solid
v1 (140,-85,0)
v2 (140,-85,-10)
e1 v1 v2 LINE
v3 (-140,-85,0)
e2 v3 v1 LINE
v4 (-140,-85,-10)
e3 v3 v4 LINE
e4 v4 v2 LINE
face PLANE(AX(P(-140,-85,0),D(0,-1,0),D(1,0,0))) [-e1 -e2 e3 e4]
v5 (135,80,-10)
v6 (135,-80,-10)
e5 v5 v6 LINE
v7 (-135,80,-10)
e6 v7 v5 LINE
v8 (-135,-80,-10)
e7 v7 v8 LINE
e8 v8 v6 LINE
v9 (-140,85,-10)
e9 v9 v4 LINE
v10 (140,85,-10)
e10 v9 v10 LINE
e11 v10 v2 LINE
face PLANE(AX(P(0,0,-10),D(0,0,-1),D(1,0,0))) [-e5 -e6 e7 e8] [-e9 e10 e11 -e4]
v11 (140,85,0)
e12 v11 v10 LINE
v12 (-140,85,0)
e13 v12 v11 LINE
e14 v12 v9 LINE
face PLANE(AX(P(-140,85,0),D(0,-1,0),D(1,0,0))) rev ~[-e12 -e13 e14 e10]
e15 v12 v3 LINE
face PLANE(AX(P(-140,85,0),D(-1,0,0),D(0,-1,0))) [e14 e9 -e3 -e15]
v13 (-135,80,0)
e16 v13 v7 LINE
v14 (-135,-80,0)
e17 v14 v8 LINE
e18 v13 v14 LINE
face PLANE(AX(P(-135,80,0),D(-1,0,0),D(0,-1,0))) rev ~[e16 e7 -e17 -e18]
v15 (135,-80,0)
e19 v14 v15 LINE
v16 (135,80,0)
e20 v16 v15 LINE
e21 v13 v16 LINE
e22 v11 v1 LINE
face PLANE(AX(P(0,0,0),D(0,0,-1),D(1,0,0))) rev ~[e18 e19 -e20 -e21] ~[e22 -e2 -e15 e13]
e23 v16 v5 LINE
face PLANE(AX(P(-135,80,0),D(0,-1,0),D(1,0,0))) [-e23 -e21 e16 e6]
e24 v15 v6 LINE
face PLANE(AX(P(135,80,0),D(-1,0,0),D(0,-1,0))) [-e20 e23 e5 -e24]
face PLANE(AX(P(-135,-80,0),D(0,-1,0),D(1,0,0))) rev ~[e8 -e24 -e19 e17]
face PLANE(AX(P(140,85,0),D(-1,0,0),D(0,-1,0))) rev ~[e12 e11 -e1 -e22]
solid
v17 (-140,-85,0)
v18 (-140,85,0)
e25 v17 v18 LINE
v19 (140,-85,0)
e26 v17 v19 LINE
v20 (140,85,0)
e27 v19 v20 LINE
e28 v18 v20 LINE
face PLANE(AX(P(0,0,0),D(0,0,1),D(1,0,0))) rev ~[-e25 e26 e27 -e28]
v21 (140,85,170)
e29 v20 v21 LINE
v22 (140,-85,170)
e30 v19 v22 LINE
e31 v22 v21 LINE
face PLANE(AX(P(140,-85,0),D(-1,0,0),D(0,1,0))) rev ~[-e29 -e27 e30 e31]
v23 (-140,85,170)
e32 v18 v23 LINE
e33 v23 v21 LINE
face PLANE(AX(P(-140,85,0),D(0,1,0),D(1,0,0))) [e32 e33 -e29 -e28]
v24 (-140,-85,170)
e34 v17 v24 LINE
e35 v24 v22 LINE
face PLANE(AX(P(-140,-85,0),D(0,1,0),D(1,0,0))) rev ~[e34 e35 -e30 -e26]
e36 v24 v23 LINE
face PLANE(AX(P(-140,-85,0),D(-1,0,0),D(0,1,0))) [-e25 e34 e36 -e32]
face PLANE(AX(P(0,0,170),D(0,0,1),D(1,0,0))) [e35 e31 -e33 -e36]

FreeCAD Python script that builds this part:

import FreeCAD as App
import Part
import Sketcher

V = App.Vector
Q = App.Units.Quantity


def add_polygon(sketch, points):
    """Adds a closed chain of lines whose ends are joined by coincident constraints."""
    first, n = sketch.GeometryCount, len(points)
    for a, b in zip(points, points[1:] + points[:1]):
        sketch.addGeometry(Part.LineSegment(App.Vector(*a, 0), App.Vector(*b, 0)), False)
    for i in range(n):
        sketch.addConstraint(Sketcher.Constraint("Coincident", first + i, 2, first + (i + 1) % n, 1))

doc = App.newDocument("Part")
body = doc.addObject("PartDesign::Body", "Body")

sketch1 = doc.addObject("Sketcher::SketchObject", "Sketch")
body.addObject(sketch1)
sketch1.AttachmentSupport = (doc.XY_Plane, [""])
sketch1.MapMode = "FlatFace"
add_polygon(sketch1, [(-140, 85), (-140, -85), (140, -85), (140, 85)])
sketch1.addConstraint([
    Sketcher.Constraint("Vertical", 0),
    Sketcher.Constraint("Horizontal", 1),
    Sketcher.Constraint("Vertical", 2),
    Sketcher.Constraint("Horizontal", 3),
    Sketcher.Constraint("Symmetric", 0, 2, 2, 2, -1, 1),
    Sketcher.Constraint("DistanceX", 1, 1, 1, 2, Q("280 mm")),
    Sketcher.Constraint("DistanceY", 0, 2, 0, 1, Q("170 mm")),
])
pad1 = doc.addObject("PartDesign::Pad", "Pad")
body.addObject(pad1)
pad1.Profile = sketch1
pad1.Length = 170
body2 = doc.addObject("PartDesign::Body", "Body001")

sketch2 = doc.addObject("Sketcher::SketchObject", "Sketch001")
body2.addObject(sketch2)
sketch2.AttachmentSupport = (doc.getObject("XY_Plane001"), [""])
sketch2.MapMode = "FlatFace"
add_polygon(sketch2, [(-140, -85), (-140, 85), (140, 85), (140, -85)])
add_polygon(sketch2, [(135, 80), (-135, 80), (-135, -80), (135, -80)])
sketch2.addConstraint([
    Sketcher.Constraint("Vertical", 0),
    Sketcher.Constraint("Horizontal", 1),
    Sketcher.Constraint("Vertical", 2),
    Sketcher.Constraint("Horizontal", 3),
    Sketcher.Constraint("Horizontal", 4),
    Sketcher.Constraint("Vertical", 5),
    Sketcher.Constraint("Horizontal", 6),
    Sketcher.Constraint("Vertical", 7),
    Sketcher.Constraint("Symmetric", 0, 2, 2, 2, -1, 1),
    Sketcher.Constraint("Symmetric", 4, 2, 6, 2, -1, 1),
    Sketcher.Constraint("DistanceX", 1, 1, 1, 2, Q("280 mm")),
    Sketcher.Constraint("DistanceX", 4, 2, 4, 1, Q("270 mm")),
    Sketcher.Constraint("DistanceY", 0, 1, 0, 2, Q("170 mm")),
    Sketcher.Constraint("DistanceY", 5, 2, 5, 1, Q("160 mm")),
])
pad2 = doc.addObject("PartDesign::Pad", "Pad001")
body2.addObject(pad2)
pad2.Profile = sketch2
pad2.Length = 10
pad2.Reversed = True

doc.recompute()
